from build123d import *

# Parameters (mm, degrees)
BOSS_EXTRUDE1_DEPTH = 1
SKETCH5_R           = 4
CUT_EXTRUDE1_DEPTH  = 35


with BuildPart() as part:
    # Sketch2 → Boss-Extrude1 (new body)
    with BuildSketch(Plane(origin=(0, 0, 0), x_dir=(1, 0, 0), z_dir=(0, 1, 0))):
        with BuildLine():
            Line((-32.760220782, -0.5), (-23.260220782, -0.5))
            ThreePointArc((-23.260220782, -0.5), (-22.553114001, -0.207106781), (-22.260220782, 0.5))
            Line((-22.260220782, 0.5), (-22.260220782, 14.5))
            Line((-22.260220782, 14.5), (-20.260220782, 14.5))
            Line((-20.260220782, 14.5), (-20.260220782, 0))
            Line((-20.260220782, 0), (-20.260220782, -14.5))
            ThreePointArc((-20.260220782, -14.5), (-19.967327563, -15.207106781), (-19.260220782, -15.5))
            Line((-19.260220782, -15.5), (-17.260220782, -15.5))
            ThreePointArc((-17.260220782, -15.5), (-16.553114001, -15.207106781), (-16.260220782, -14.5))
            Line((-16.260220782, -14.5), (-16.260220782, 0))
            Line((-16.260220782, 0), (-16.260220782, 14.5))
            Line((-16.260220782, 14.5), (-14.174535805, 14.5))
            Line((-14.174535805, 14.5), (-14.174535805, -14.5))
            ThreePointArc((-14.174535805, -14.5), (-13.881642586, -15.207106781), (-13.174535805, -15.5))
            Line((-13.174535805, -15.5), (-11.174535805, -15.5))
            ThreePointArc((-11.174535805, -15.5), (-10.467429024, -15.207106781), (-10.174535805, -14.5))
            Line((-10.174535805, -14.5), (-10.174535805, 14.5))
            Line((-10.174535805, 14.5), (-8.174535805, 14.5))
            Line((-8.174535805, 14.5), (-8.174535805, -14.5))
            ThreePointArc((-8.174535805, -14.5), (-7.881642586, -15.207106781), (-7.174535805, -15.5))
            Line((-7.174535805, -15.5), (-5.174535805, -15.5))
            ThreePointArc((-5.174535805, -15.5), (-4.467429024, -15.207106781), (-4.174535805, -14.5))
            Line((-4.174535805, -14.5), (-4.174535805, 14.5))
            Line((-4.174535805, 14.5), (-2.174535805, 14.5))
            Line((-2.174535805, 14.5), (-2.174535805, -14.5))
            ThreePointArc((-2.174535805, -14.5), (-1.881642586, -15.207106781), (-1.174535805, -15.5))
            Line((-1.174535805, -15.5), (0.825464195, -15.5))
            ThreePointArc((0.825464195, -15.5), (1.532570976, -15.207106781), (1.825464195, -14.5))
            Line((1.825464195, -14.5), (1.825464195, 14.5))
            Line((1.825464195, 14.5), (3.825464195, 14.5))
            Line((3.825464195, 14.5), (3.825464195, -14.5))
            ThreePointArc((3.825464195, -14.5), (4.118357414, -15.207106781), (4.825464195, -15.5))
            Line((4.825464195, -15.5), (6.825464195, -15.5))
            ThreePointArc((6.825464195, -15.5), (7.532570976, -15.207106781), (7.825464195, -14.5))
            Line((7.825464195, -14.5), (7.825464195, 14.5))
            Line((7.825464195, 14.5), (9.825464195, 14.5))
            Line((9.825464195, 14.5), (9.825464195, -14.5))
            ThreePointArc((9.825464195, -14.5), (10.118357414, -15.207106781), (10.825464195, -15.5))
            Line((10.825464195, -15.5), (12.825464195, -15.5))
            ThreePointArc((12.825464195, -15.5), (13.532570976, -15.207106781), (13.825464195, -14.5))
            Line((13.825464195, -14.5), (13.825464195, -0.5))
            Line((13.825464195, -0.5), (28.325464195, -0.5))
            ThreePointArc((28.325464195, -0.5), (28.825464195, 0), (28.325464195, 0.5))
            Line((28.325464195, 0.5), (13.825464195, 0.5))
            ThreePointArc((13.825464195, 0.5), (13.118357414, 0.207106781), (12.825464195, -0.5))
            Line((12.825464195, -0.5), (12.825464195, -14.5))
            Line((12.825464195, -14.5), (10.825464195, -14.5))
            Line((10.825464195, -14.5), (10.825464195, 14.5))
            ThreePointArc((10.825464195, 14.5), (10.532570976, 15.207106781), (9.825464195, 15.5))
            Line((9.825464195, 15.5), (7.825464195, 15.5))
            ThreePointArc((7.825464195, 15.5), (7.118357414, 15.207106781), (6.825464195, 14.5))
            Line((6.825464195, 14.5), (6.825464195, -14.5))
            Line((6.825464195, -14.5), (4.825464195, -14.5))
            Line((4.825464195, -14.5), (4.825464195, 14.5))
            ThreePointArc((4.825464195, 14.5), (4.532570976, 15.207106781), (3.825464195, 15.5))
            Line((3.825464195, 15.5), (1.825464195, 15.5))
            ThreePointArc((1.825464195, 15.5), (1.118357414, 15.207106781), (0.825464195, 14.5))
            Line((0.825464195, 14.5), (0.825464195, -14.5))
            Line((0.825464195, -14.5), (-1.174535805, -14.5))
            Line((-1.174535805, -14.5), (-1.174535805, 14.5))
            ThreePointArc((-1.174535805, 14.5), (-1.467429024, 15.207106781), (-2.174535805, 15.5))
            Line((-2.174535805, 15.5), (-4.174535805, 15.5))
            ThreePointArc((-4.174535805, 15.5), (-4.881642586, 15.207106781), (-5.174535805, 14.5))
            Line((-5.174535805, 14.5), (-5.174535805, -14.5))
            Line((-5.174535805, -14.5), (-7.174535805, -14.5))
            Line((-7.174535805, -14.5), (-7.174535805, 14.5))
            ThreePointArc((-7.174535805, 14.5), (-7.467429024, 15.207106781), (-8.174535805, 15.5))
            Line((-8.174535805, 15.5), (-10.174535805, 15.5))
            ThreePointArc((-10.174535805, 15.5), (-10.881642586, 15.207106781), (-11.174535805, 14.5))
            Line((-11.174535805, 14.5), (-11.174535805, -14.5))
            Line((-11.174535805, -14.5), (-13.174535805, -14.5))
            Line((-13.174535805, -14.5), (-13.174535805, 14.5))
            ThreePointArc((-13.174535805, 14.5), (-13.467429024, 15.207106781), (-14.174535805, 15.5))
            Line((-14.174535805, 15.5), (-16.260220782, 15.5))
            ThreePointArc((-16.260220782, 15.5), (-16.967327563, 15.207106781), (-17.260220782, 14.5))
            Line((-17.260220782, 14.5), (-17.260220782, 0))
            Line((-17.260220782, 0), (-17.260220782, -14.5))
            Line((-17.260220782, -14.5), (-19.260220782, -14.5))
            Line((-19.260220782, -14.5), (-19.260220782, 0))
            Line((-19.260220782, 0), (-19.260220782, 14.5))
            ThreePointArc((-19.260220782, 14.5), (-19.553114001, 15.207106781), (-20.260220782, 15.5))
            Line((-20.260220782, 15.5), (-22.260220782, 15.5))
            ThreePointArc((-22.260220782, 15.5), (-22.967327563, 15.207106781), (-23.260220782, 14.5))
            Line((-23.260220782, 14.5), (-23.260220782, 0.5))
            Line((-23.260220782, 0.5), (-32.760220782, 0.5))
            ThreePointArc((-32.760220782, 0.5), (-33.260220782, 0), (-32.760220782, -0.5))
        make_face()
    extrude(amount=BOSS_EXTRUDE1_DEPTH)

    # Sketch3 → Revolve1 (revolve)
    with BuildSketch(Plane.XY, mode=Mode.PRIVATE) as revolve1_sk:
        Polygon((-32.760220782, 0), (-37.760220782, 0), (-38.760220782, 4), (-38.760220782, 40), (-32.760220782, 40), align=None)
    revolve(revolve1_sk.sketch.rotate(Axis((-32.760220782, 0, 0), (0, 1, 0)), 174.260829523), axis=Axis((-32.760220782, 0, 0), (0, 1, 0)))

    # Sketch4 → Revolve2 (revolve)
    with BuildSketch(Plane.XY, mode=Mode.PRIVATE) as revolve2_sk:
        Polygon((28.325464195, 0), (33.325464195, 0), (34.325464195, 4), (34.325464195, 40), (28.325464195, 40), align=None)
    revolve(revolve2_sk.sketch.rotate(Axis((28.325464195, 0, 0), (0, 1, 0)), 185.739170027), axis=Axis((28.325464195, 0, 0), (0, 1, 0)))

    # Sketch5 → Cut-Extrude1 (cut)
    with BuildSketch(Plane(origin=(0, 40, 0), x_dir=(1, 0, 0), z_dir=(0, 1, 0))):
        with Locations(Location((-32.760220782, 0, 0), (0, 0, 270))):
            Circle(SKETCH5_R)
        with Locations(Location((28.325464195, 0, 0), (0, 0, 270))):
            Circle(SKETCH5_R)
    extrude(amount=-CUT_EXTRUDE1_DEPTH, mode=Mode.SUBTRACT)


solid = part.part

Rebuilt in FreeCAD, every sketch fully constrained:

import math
import FreeCAD as App
import Part
import Sketcher

V = App.Vector
Q = App.Units.Quantity


def add_polygon(sketch, points):
    """Adds a closed chain of lines whose ends are joined by coincident constraints."""
    first, n = sketch.GeometryCount, len(points)
    for a, b in zip(points, points[1:] + points[:1]):
        sketch.addGeometry(Part.LineSegment(App.Vector(*a, 0), App.Vector(*b, 0)), False)
    for i in range(n):
        sketch.addConstraint(Sketcher.Constraint("Coincident", first + i, 2, first + (i + 1) % n, 1))

doc = App.newDocument("Part")
body = doc.addObject("PartDesign::Body", "Body")

sketch1 = body.newObject("Sketcher::SketchObject", "Sketch")
sketch1.AttachmentSupport = (doc.getObject("XZ_Plane"), [""])
sketch1.MapMode = "FlatFace"
sketch1.addGeometry([
    Part.LineSegment(V(-32.8, 0.5, 0), V(-23.3, 0.5, 0)),
    Part.ArcOfCircle(Part.Circle(V(-23.3, -0.5, 0), V(0, 0, 1), 1), math.radians(0), math.radians(90)),
    Part.LineSegment(V(-22.3, -0.5, 0), V(-22.3, -14.5, 0)),
    Part.LineSegment(V(-22.3, -14.5, 0), V(-20.3, -14.5, 0)),
    Part.LineSegment(V(-20.3, -14.5, 0), V(-20.3, 14.5, 0)),
    Part.ArcOfCircle(Part.Circle(V(-19.3, 14.5, 0), V(0, 0, 1), 1), math.radians(90), math.radians(180)),
    Part.LineSegment(V(-19.3, 15.5, 0), V(-17.3, 15.5, 0)),
    Part.ArcOfCircle(Part.Circle(V(-17.3, 14.5, 0), V(0, 0, 1), 1), math.radians(0), math.radians(90)),
    Part.LineSegment(V(-16.3, 14.5, 0), V(-16.3, -14.5, 0)),
    Part.LineSegment(V(-16.3, -14.5, 0), V(-14.2, -14.5, 0)),
    Part.LineSegment(V(-14.2, -14.5, 0), V(-14.2, 14.5, 0)),
    Part.ArcOfCircle(Part.Circle(V(-13.2, 14.5, 0), V(0, 0, 1), 1), math.radians(90), math.radians(180)),
    Part.LineSegment(V(-13.2, 15.5, 0), V(-11.2, 15.5, 0)),
    Part.ArcOfCircle(Part.Circle(V(-11.2, 14.5, 0), V(0, 0, 1), 1), math.radians(0), math.radians(90)),
    Part.LineSegment(V(-10.2, 14.5, 0), V(-10.2, -14.5, 0)),
    Part.LineSegment(V(-10.2, -14.5, 0), V(-8.2, -14.5, 0)),
    Part.LineSegment(V(-8.2, -14.5, 0), V(-8.2, 14.5, 0)),
    Part.ArcOfCircle(Part.Circle(V(-7.2, 14.5, 0), V(0, 0, 1), 1), math.radians(90), math.radians(180)),
    Part.LineSegment(V(-7.2, 15.5, 0), V(-5.2, 15.5, 0)),
    Part.ArcOfCircle(Part.Circle(V(-5.2, 14.5, 0), V(0, 0, 1), 1), math.radians(0), math.radians(90)),
    Part.LineSegment(V(-4.2, 14.5, 0), V(-4.2, -14.5, 0)),
    Part.LineSegment(V(-4.2, -14.5, 0), V(-2.2, -14.5, 0)),
    Part.LineSegment(V(-2.2, -14.5, 0), V(-2.2, 14.5, 0)),
    Part.ArcOfCircle(Part.Circle(V(-1.2, 14.5, 0), V(0, 0, 1), 1), math.radians(90), math.radians(180)),
    Part.LineSegment(V(-1.2, 15.5, 0), V(0.8, 15.5, 0)),
    Part.ArcOfCircle(Part.Circle(V(0.8, 14.5, 0), V(0, 0, 1), 1), math.radians(0), math.radians(90)),
    Part.LineSegment(V(1.8, 14.5, 0), V(1.8, -14.5, 0)),
    Part.LineSegment(V(1.8, -14.5, 0), V(3.8, -14.5, 0)),
    Part.LineSegment(V(3.8, -14.5, 0), V(3.8, 14.5, 0)),
    Part.ArcOfCircle(Part.Circle(V(4.8, 14.5, 0), V(0, 0, 1), 1), math.radians(90), math.radians(180)),
    Part.LineSegment(V(4.8, 15.5, 0), V(6.8, 15.5, 0)),
    Part.ArcOfCircle(Part.Circle(V(6.8, 14.5, 0), V(0, 0, 1), 1), math.radians(0), math.radians(90)),
    Part.LineSegment(V(7.8, 14.5, 0), V(7.8, -14.5, 0)),
    Part.LineSegment(V(7.8, -14.5, 0), V(9.8, -14.5, 0)),
    Part.LineSegment(V(9.8, -14.5, 0), V(9.8, 14.5, 0)),
    Part.ArcOfCircle(Part.Circle(V(10.8, 14.5, 0), V(0, 0, 1), 1), math.radians(90), math.radians(180)),
    Part.LineSegment(V(10.8, 15.5, 0), V(12.8, 15.5, 0)),
    Part.ArcOfCircle(Part.Circle(V(12.8, 14.5, 0), V(0, 0, 1), 1), math.radians(0), math.radians(90)),
    Part.LineSegment(V(13.8, 14.5, 0), V(13.8, 0.5, 0)),
    Part.LineSegment(V(13.8, 0.5, 0), V(28.3, 0.5, 0)),
    Part.ArcOfCircle(Part.Circle(V(28.3, 0, 0), V(0, 0, 1), 0.5), math.radians(-90), math.radians(90)),
    Part.LineSegment(V(28.3, -0.5, 0), V(13.8, -0.5, 0)),
    Part.ArcOfCircle(Part.Circle(V(13.8, 0.5, 0), V(0, 0, 1), 1), math.radians(-180), math.radians(-90)),
    Part.LineSegment(V(12.8, 0.5, 0), V(12.8, 14.5, 0)),
    Part.LineSegment(V(12.8, 14.5, 0), V(10.8, 14.5, 0)),
    Part.LineSegment(V(10.8, 14.5, 0), V(10.8, -14.5, 0)),
    Part.ArcOfCircle(Part.Circle(V(9.8, -14.5, 0), V(0, 0, 1), 1), math.radians(-90), math.radians(0)),
    Part.LineSegment(V(9.8, -15.5, 0), V(7.8, -15.5, 0)),
    Part.ArcOfCircle(Part.Circle(V(7.8, -14.5, 0), V(0, 0, 1), 1), math.radians(-180), math.radians(-90)),
    Part.LineSegment(V(6.8, -14.5, 0), V(6.8, 14.5, 0)),
    Part.LineSegment(V(6.8, 14.5, 0), V(4.8, 14.5, 0)),
    Part.LineSegment(V(4.8, 14.5, 0), V(4.8, -14.5, 0)),
    Part.ArcOfCircle(Part.Circle(V(3.8, -14.5, 0), V(0, 0, 1), 1), math.radians(-90), math.radians(0)),
    Part.LineSegment(V(3.8, -15.5, 0), V(1.8, -15.5, 0)),
    Part.ArcOfCircle(Part.Circle(V(1.8, -14.5, 0), V(0, 0, 1), 1), math.radians(-180), math.radians(-90)),
    Part.LineSegment(V(0.8, -14.5, 0), V(0.8, 14.5, 0)),
    Part.LineSegment(V(0.8, 14.5, 0), V(-1.2, 14.5, 0)),
    Part.LineSegment(V(-1.2, 14.5, 0), V(-1.2, -14.5, 0)),
    Part.ArcOfCircle(Part.Circle(V(-2.2, -14.5, 0), V(0, 0, 1), 1), math.radians(-90), math.radians(0)),
    Part.LineSegment(V(-2.2, -15.5, 0), V(-4.2, -15.5, 0)),
    Part.ArcOfCircle(Part.Circle(V(-4.2, -14.5, 0), V(0, 0, 1), 1), math.radians(-180), math.radians(-90)),
    Part.LineSegment(V(-5.2, -14.5, 0), V(-5.2, 14.5, 0)),
    Part.LineSegment(V(-5.2, 14.5, 0), V(-7.2, 14.5, 0)),
    Part.LineSegment(V(-7.2, 14.5, 0), V(-7.2, -14.5, 0)),
    Part.ArcOfCircle(Part.Circle(V(-8.2, -14.5, 0), V(0, 0, 1), 1), math.radians(-90), math.radians(0)),
    Part.LineSegment(V(-8.2, -15.5, 0), V(-10.2, -15.5, 0)),
    Part.ArcOfCircle(Part.Circle(V(-10.2, -14.5, 0), V(0, 0, 1), 1), math.radians(-180), math.radians(-90)),
    Part.LineSegment(V(-11.2, -14.5, 0), V(-11.2, 14.5, 0)),
    Part.LineSegment(V(-11.2, 14.5, 0), V(-13.2, 14.5, 0)),
    Part.LineSegment(V(-13.2, 14.5, 0), V(-13.2, -14.5, 0)),
    Part.ArcOfCircle(Part.Circle(V(-14.2, -14.5, 0), V(0, 0, 1), 1), math.radians(-90), math.radians(0)),
    Part.LineSegment(V(-14.2, -15.5, 0), V(-16.3, -15.5, 0)),
    Part.ArcOfCircle(Part.Circle(V(-16.3, -14.5, 0), V(0, 0, 1), 1), math.radians(-180), math.radians(-90)),
    Part.LineSegment(V(-17.3, -14.5, 0), V(-17.3, 14.5, 0)),
    Part.LineSegment(V(-17.3, 14.5, 0), V(-19.3, 14.5, 0)),
    Part.LineSegment(V(-19.3, 14.5, 0), V(-19.3, -14.5, 0)),
    Part.ArcOfCircle(Part.Circle(V(-20.3, -14.5, 0), V(0, 0, 1), 1), math.radians(-90), math.radians(0)),
    Part.LineSegment(V(-20.3, -15.5, 0), V(-22.3, -15.5, 0)),
    Part.ArcOfCircle(Part.Circle(V(-22.3, -14.5, 0), V(0, 0, 1), 1), math.radians(-180), math.radians(-90)),
    Part.LineSegment(V(-23.3, -14.5, 0), V(-23.3, -0.5, 0)),
    Part.LineSegment(V(-23.3, -0.5, 0), V(-32.8, -0.5, 0)),
    Part.ArcOfCircle(Part.Circle(V(-32.8, 0, 0), V(0, 0, 1), 0.5), math.radians(90), math.radians(270)),
], False)
sketch1.addConstraint([
    Sketcher.Constraint("Tangent", 0, 2, 1, 2),
    Sketcher.Constraint("Tangent", 1, 1, 2, 1),
    Sketcher.Constraint("Coincident", 2, 2, 3, 1),
    Sketcher.Constraint("Coincident", 3, 2, 4, 1),
    Sketcher.Constraint("Tangent", 4, 2, 5, 2),
    Sketcher.Constraint("Tangent", 5, 1, 6, 1),
    Sketcher.Constraint("Tangent", 6, 2, 7, 2),
    Sketcher.Constraint("Tangent", 7, 1, 8, 1),
    Sketcher.Constraint("Coincident", 8, 2, 9, 1),
    Sketcher.Constraint("Coincident", 9, 2, 10, 1),
    Sketcher.Constraint("Tangent", 10, 2, 11, 2),
    Sketcher.Constraint("Tangent", 11, 1, 12, 1),
    Sketcher.Constraint("Tangent", 12, 2, 13, 2),
    Sketcher.Constraint("Tangent", 13, 1, 14, 1),
    Sketcher.Constraint("Coincident", 14, 2, 15, 1),
    Sketcher.Constraint("Coincident", 15, 2, 16, 1),
    Sketcher.Constraint("Tangent", 16, 2, 17, 2),
    Sketcher.Constraint("Tangent", 17, 1, 18, 1),
    Sketcher.Constraint("Tangent", 18, 2, 19, 2),
    Sketcher.Constraint("Tangent", 19, 1, 20, 1),
    Sketcher.Constraint("Coincident", 20, 2, 21, 1),
    Sketcher.Constraint("Coincident", 21, 2, 22, 1),
    Sketcher.Constraint("Tangent", 22, 2, 23, 2),
    Sketcher.Constraint("Tangent", 23, 1, 24, 1),
    Sketcher.Constraint("Tangent", 24, 2, 25, 2),
    Sketcher.Constraint("Tangent", 25, 1, 26, 1),
    Sketcher.Constraint("Coincident", 26, 2, 27, 1),
    Sketcher.Constraint("Coincident", 27, 2, 28, 1),
    Sketcher.Constraint("Tangent", 28, 2, 29, 2),
    Sketcher.Constraint("Tangent", 29, 1, 30, 1),
    Sketcher.Constraint("Tangent", 30, 2, 31, 2),
    Sketcher.Constraint("Tangent", 31, 1, 32, 1),
    Sketcher.Constraint("Coincident", 32, 2, 33, 1),
    Sketcher.Constraint("Coincident", 33, 2, 34, 1),
    Sketcher.Constraint("Tangent", 34, 2, 35, 2),
    Sketcher.Constraint("Tangent", 35, 1, 36, 1),
    Sketcher.Constraint("Tangent", 36, 2, 37, 2),
    Sketcher.Constraint("Tangent", 37, 1, 38, 1),
    Sketcher.Constraint("Coincident", 38, 2, 39, 1),
    Sketcher.Constraint("Tangent", 39, 2, 40, 2),
    Sketcher.Constraint("Tangent", 40, 1, 41, 1),
    Sketcher.Constraint("Tangent", 41, 2, 42, 2),
    Sketcher.Constraint("Tangent", 42, 1, 43, 1),
    Sketcher.Constraint("Coincident", 43, 2, 44, 1),
    Sketcher.Constraint("Coincident", 44, 2, 45, 1),
    Sketcher.Constraint("Tangent", 45, 2, 46, 2),
    Sketcher.Constraint("Tangent", 46, 1, 47, 1),
    Sketcher.Constraint("Tangent", 47, 2, 48, 2),
    Sketcher.Constraint("Tangent", 48, 1, 49, 1),
    Sketcher.Constraint("Coincident", 49, 2, 50, 1),
    Sketcher.Constraint("Coincident", 50, 2, 51, 1),
    Sketcher.Constraint("Tangent", 51, 2, 52, 2),
    Sketcher.Constraint("Tangent", 52, 1, 53, 1),
    Sketcher.Constraint("Tangent", 53, 2, 54, 2),
    Sketcher.Constraint("Tangent", 54, 1, 55, 1),
    Sketcher.Constraint("Coincident", 55, 2, 56, 1),
    Sketcher.Constraint("Coincident", 56, 2, 57, 1),
    Sketcher.Constraint("Tangent", 57, 2, 58, 2),
    Sketcher.Constraint("Tangent", 58, 1, 59, 1),
    Sketcher.Constraint("Tangent", 59, 2, 60, 2),
    Sketcher.Constraint("Tangent", 60, 1, 61, 1),
    Sketcher.Constraint("Coincident", 61, 2, 62, 1),
    Sketcher.Constraint("Coincident", 62, 2, 63, 1),
    Sketcher.Constraint("Tangent", 63, 2, 64, 2),
    Sketcher.Constraint("Tangent", 64, 1, 65, 1),
    Sketcher.Constraint("Tangent", 65, 2, 66, 2),
    Sketcher.Constraint("Tangent", 66, 1, 67, 1),
    Sketcher.Constraint("Coincident", 67, 2, 68, 1),
    Sketcher.Constraint("Coincident", 68, 2, 69, 1),
    Sketcher.Constraint("Tangent", 69, 2, 70, 2),
    Sketcher.Constraint("Tangent", 70, 1, 71, 1),
    Sketcher.Constraint("Tangent", 71, 2, 72, 2),
    Sketcher.Constraint("Tangent", 72, 1, 73, 1),
    Sketcher.Constraint("Coincident", 73, 2, 74, 1),
    Sketcher.Constraint("Coincident", 74, 2, 75, 1),
    Sketcher.Constraint("Tangent", 75, 2, 76, 2),
    Sketcher.Constraint("Tangent", 76, 1, 77, 1),
    Sketcher.Constraint("Tangent", 77, 2, 78, 2),
    Sketcher.Constraint("Tangent", 78, 1, 79, 1),
    Sketcher.Constraint("Coincident", 79, 2, 80, 1),
    Sketcher.Constraint("Tangent", 80, 2, 81, 2),
    Sketcher.Constraint("Tangent", 81, 1, 0, 1),
    Sketcher.Constraint("Horizontal", 0),
    Sketcher.Constraint("Vertical", 2),
    Sketcher.Constraint("Horizontal", 3),
    Sketcher.Constraint("Vertical", 4),
    Sketcher.Constraint("Horizontal", 6),
    Sketcher.Constraint("Vertical", 8),
    Sketcher.Constraint("Horizontal", 9),
    Sketcher.Constraint("Vertical", 10),
    Sketcher.Constraint("Horizontal", 12),
    Sketcher.Constraint("Vertical", 14),
    Sketcher.Constraint("Horizontal", 15),
    Sketcher.Constraint("Vertical", 16),
    Sketcher.Constraint("Horizontal", 18),
    Sketcher.Constraint("Vertical", 20),
    Sketcher.Constraint("Horizontal", 21),
    Sketcher.Constraint("Vertical", 22),
    Sketcher.Constraint("Horizontal", 24),
    Sketcher.Constraint("Vertical", 26),
    Sketcher.Constraint("Horizontal", 27),
    Sketcher.Constraint("Vertical", 28),
    Sketcher.Constraint("Horizontal", 30),
    Sketcher.Constraint("Vertical", 32),
    Sketcher.Constraint("Horizontal", 33),
    Sketcher.Constraint("Vertical", 34),
    Sketcher.Constraint("Horizontal", 36),
    Sketcher.Constraint("Vertical", 38),
    Sketcher.Constraint("Horizontal", 39),
    Sketcher.Constraint("Horizontal", 41),
    Sketcher.Constraint("Vertical", 43),
    Sketcher.Constraint("Horizontal", 44),
    Sketcher.Constraint("Vertical", 45),
    Sketcher.Constraint("Horizontal", 47),
    Sketcher.Constraint("Vertical", 49),
    Sketcher.Constraint("Horizontal", 50),
    Sketcher.Constraint("Vertical", 51),
    Sketcher.Constraint("Horizontal", 53),
    Sketcher.Constraint("Vertical", 55),
    Sketcher.Constraint("Horizontal", 56),
    Sketcher.Constraint("Vertical", 57),
    Sketcher.Constraint("Horizontal", 59),
    Sketcher.Constraint("Vertical", 61),
    Sketcher.Constraint("Horizontal", 62),
    Sketcher.Constraint("Vertical", 63),
    Sketcher.Constraint("Horizontal", 65),
    Sketcher.Constraint("Vertical", 67),
    Sketcher.Constraint("Horizontal", 68),
    Sketcher.Constraint("Vertical", 69),
    Sketcher.Constraint("Horizontal", 71),
    Sketcher.Constraint("Vertical", 73),
    Sketcher.Constraint("Horizontal", 74),
    Sketcher.Constraint("Vertical", 75),
    Sketcher.Constraint("Horizontal", 77),
    Sketcher.Constraint("Vertical", 79),
    Sketcher.Constraint("Horizontal", 80),
    Sketcher.Constraint("Coincident", 2, 2, 78, 3),
    Sketcher.Constraint("Coincident", 3, 2, 76, 3),
    Sketcher.Constraint("Coincident", 8, 2, 72, 3),
    Sketcher.Constraint("Coincident", 9, 2, 70, 3),
    Sketcher.Constraint("Coincident", 14, 2, 66, 3),
    Sketcher.Constraint("Coincident", 15, 2, 64, 3),
    Sketcher.Constraint("Coincident", 20, 2, 60, 3),
    Sketcher.Constraint("Coincident", 21, 2, 58, 3),
    Sketcher.Constraint("Coincident", 26, 2, 54, 3),
    Sketcher.Constraint("Coincident", 27, 2, 52, 3),
    Sketcher.Constraint("Coincident", 32, 2, 48, 3),
    Sketcher.Constraint("Coincident", 33, 2, 46, 3),
    Sketcher.Constraint("Coincident", 38, 2, 42, 3),
    Sketcher.Constraint("Coincident", 43, 2, 37, 3),
    Sketcher.Constraint("Coincident", 44, 2, 35, 3),
    Sketcher.Constraint("Coincident", 49, 2, 31, 3),
    Sketcher.Constraint("Coincident", 50, 2, 29, 3),
    Sketcher.Constraint("Coincident", 55, 2, 25, 3),
    Sketcher.Constraint("Coincident", 56, 2, 23, 3),
    Sketcher.Constraint("Coincident", 61, 2, 19, 3),
    Sketcher.Constraint("Coincident", 62, 2, 17, 3),
    Sketcher.Constraint("Coincident", 67, 2, 13, 3),
    Sketcher.Constraint("Coincident", 68, 2, 11, 3),
    Sketcher.Constraint("Coincident", 73, 2, 7, 3),
    Sketcher.Constraint("Coincident", 74, 2, 5, 3),
    Sketcher.Constraint("Coincident", 79, 2, 1, 3),
    Sketcher.Constraint("PointOnObject", 40, 3, -1),
    Sketcher.Constraint("PointOnObject", 81, 3, -1),
    Sketcher.Constraint("Horizontal", 7, 3, 11, 3),
    Sketcher.Constraint("Horizontal", 13, 3, 17, 3),
    Sketcher.Constraint("Horizontal", 19, 3, 23, 3),
    Sketcher.Constraint("Horizontal", 25, 3, 29, 3),
    Sketcher.Constraint("Horizontal", 31, 3, 35, 3),
    Sketcher.Constraint("Horizontal", 48, 3, 52, 3),
    Sketcher.Constraint("Horizontal", 54, 3, 58, 3),
    Sketcher.Constraint("Horizontal", 60, 3, 64, 3),
    Sketcher.Constraint("Horizontal", 66, 3, 70, 3),
    Sketcher.Constraint("Horizontal", 72, 3, 76, 3),
    Sketcher.Constraint("Equal", 3, 6),
    Sketcher.Constraint("Equal", 6, 12),
    Sketcher.Constraint("Equal", 12, 15),
    Sketcher.Constraint("Equal", 15, 18),
    Sketcher.Constraint("Equal", 18, 21),
    Sketcher.Constraint("Equal", 21, 24),
    Sketcher.Constraint("Equal", 24, 27),
    Sketcher.Constraint("Equal", 27, 30),
    Sketcher.Constraint("Equal", 30, 33),
    Sketcher.Constraint("Equal", 33, 36),
    Sketcher.Constraint("Equal", 2, 38),
    Sketcher.Constraint("Radius", 1, Q("1 mm")),
    Sketcher.Constraint("DistanceX", 3, 1, 3, 2, Q("2 mm")),
    Sketcher.Constraint("DistanceY", 2, 2, 2, 1, Q("14 mm")),
    Sketcher.Constraint("DistanceX", 0, 1, 0, 2, Q("9.5 mm")),
    Sketcher.Constraint("DistanceX", 39, 1, 39, 2, Q("14.5 mm")),
    Sketcher.Constraint("DistanceX", 9, 1, 9, 2, Q("2.085685 mm")),
    Sketcher.Constraint("DistanceX", 1, 3, -1, 1, Q("23.260221 mm")),
])
pad1 = body.newObject("PartDesign::Pad", "Pad")
pad1.Profile = sketch1
pad1.Length = 1
pad1.Reversed = True

sketch2 = body.newObject("Sketcher::SketchObject", "Sketch001")
sketch2.AttachmentSupport = (doc.getObject("XY_Plane"), [""])
sketch2.MapMode = "FlatFace"
add_polygon(sketch2, [(-37.8, 0), (-32.8, 0), (-32.8, 40), (-38.8, 40), (-38.8, 4)])
sketch2.addGeometry(Part.LineSegment(V(-32.8, 0, 0), V(-32.8, 40, 0)), True)
sketch2.addConstraint([
    Sketcher.Constraint("Horizontal", 0),
    Sketcher.Constraint("Vertical", 1),
    Sketcher.Constraint("Horizontal", 2),
    Sketcher.Constraint("Vertical", 3),
    Sketcher.Constraint("Vertical", 5),
    Sketcher.Constraint("Coincident", 5, 1, 0, 2),
    Sketcher.Constraint("PointOnObject", 0, 2, -1),
    Sketcher.Constraint("Horizontal", 2, 2, 5, 2),
    Sketcher.Constraint("DistanceX", 0, 1, 0, 2, Q("5 mm")),
    Sketcher.Constraint("DistanceX", 2, 2, 2, 1, Q("6 mm")),
    Sketcher.Constraint("DistanceY", 1, 1, 1, 2, Q("40 mm")),
    Sketcher.Constraint("DistanceY", 3, 2, 3, 1, Q("36 mm")),
    Sketcher.Constraint("DistanceX", 0, 2, -1, 1, Q("32.760221 mm")),
])
revolution = body.newObject("PartDesign::Revolution", "Revolution")
revolution.Profile = sketch2
revolution.ReferenceAxis = (sketch2, ["Axis0"])
revolution.Angle = 360

sketch3 = body.newObject("Sketcher::SketchObject", "Sketch002")
sketch3.AttachmentSupport = (doc.getObject("XY_Plane"), [""])
sketch3.MapMode = "FlatFace"
add_polygon(sketch3, [(28.3, 0), (33.3, 0), (34.3, 4), (34.3, 40), (28.3, 40)])
sketch3.addGeometry(Part.LineSegment(V(28.3, 0, 0), V(28.3, 40, 0)), True)
sketch3.addConstraint([
    Sketcher.Constraint("Horizontal", 0),
    Sketcher.Constraint("Vertical", 2),
    Sketcher.Constraint("Horizontal", 3),
    Sketcher.Constraint("Vertical", 4),
    Sketcher.Constraint("Vertical", 5),
    Sketcher.Constraint("Coincident", 5, 1, 4, 2),
    Sketcher.Constraint("PointOnObject", 0, 2, -1),
    Sketcher.Constraint("Horizontal", 2, 2, 5, 2),
    Sketcher.Constraint("DistanceX", 0, 1, 0, 2, Q("5 mm")),
    Sketcher.Constraint("DistanceX", 3, 2, 3, 1, Q("6 mm")),
    Sketcher.Constraint("DistanceY", 2, 1, 2, 2, Q("36 mm")),
    Sketcher.Constraint("DistanceY", 4, 2, 4, 1, Q("40 mm")),
    Sketcher.Constraint("DistanceX", -1, 1, 0, 2, Q("33.325464 mm")),
])
revolution2 = body.newObject("PartDesign::Revolution", "Revolution001")
revolution2.Profile = sketch3
revolution2.ReferenceAxis = (sketch3, ["Axis0"])
revolution2.Angle = 360

sketch4 = body.newObject("Sketcher::SketchObject", "Sketch003")
sketch4.AttachmentSupport = (doc.getObject("XZ_Plane"), [""])
sketch4.MapMode = "FlatFace"
sketch4.AttachmentOffset = App.Placement(V(0, 0, -40), App.Rotation())
sketch4.addGeometry([
    Part.Circle(V(-32.8, 0, 0), V(0, 0, 1), 4),
    Part.Circle(V(28.3, 0, 0), V(0, 0, 1), 4),
], False)
sketch4.addConstraint([
    Sketcher.Constraint("Equal", 0, 1),
    Sketcher.Constraint("PointOnObject", 0, 3, -1),
    Sketcher.Constraint("PointOnObject", 1, 3, -1),
    Sketcher.Constraint("Diameter", 0, Q("8 mm")),
    Sketcher.Constraint("DistanceX", 0, 3, -1, 1, Q("32.760221 mm")),
    Sketcher.Constraint("DistanceX", -1, 1, 1, 3, Q("28.325464 mm")),
])
pocket1 = body.newObject("PartDesign::Pocket", "Pocket")
pocket1.Profile = sketch4
pocket1.Length = 35
pocket1.Reversed = True

doc.recompute()
